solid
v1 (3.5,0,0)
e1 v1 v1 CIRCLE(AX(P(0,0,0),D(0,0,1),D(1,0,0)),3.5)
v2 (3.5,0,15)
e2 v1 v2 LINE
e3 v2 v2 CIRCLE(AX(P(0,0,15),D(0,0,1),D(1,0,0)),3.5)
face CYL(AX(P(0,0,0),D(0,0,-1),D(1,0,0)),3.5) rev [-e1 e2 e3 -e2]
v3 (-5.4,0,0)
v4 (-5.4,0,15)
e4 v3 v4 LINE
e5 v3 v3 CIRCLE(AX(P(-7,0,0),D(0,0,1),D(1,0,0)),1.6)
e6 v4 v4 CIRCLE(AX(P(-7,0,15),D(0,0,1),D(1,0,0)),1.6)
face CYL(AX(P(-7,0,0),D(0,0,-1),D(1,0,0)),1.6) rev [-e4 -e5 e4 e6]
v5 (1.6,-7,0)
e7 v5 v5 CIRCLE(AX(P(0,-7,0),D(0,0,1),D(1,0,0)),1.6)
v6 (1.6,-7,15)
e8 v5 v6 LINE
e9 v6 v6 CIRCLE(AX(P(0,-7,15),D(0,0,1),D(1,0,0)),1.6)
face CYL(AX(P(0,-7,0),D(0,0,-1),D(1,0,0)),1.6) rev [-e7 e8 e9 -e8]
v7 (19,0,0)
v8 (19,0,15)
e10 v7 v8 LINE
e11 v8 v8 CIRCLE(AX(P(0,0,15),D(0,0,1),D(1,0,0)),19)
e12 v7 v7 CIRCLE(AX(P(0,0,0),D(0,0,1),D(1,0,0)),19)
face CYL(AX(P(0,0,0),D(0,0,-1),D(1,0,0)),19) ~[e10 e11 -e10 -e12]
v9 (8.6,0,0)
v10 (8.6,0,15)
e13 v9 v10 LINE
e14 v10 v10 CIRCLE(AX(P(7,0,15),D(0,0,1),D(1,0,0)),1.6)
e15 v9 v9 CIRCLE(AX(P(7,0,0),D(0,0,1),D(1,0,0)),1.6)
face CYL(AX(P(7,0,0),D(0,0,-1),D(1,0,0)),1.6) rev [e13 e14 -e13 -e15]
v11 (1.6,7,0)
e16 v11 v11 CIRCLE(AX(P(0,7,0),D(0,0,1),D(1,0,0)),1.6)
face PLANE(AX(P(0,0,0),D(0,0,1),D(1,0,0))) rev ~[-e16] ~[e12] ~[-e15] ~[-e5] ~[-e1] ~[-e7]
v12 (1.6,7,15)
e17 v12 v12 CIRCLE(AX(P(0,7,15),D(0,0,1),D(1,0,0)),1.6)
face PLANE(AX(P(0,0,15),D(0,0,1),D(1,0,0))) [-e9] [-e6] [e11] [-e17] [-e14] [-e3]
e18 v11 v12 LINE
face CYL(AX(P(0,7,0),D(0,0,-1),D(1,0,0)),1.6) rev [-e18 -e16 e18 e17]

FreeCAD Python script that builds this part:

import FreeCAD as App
import Part
import Sketcher
from FreeCAD import Vector
Q = App.Units.Quantity

doc = App.newDocument("Part")
body = doc.addObject("PartDesign::Body", "Body")

# Sketch on XY plane
sketch1 = doc.addObject("Sketcher::SketchObject", "Sketch")
body.addObject(sketch1)
sketch1.AttachmentSupport = (doc.XY_Plane, [""])
sketch1.MapMode = "FlatFace"
sketch1.addGeometry([
    Part.Circle(Vector(0, 0, 0), Vector(0, 0, 1), 19),  # 0
    Part.Circle(Vector(0, -7, 0), Vector(0, 0, 1), 1.6),  # 1
    Part.Circle(Vector(-7, 0, 0), Vector(0, 0, 1), 1.6),  # 2
    Part.Circle(Vector(0, 0, 0), Vector(0, 0, 1), 3.5),  # 3
    Part.Circle(Vector(7, 0, 0), Vector(0, 0, 1), 1.6),  # 4
    Part.Circle(Vector(0, 7, 0), Vector(0, 0, 1), 1.6),  # 5
], False)
sketch1.addConstraint([
    Sketcher.Constraint("Coincident", 0, 3, -1, 1),
    Sketcher.Constraint("Coincident", 3, 3, -1, 1),
    Sketcher.Constraint("Equal", 1, 2),
    Sketcher.Constraint("Equal", 2, 4),
    Sketcher.Constraint("Equal", 4, 5),
    Sketcher.Constraint("Symmetric", 2, 3, 4, 3, -1, 1),
    Sketcher.Constraint("Symmetric", 1, 3, 5, 3, -1, 1),
    Sketcher.Constraint("PointOnObject", 1, 3, -2),
    Sketcher.Constraint("PointOnObject", 2, 3, -1),
    Sketcher.Constraint("Diameter", 0, Q("38 mm")),
    Sketcher.Constraint("Diameter", 3, Q("7 mm")),
    Sketcher.Constraint("Diameter", 1, Q("3.2 mm")),
    Sketcher.Constraint("DistanceY", 1, 3, -1, 1, Q("7 mm")),
    Sketcher.Constraint("DistanceX", 2, 3, -1, 1, Q("7 mm")),
])
pad1 = doc.addObject("PartDesign::Pad", "Pad")
body.addObject(pad1)
pad1.Profile = sketch1
pad1.Length = 15

doc.recompute()
